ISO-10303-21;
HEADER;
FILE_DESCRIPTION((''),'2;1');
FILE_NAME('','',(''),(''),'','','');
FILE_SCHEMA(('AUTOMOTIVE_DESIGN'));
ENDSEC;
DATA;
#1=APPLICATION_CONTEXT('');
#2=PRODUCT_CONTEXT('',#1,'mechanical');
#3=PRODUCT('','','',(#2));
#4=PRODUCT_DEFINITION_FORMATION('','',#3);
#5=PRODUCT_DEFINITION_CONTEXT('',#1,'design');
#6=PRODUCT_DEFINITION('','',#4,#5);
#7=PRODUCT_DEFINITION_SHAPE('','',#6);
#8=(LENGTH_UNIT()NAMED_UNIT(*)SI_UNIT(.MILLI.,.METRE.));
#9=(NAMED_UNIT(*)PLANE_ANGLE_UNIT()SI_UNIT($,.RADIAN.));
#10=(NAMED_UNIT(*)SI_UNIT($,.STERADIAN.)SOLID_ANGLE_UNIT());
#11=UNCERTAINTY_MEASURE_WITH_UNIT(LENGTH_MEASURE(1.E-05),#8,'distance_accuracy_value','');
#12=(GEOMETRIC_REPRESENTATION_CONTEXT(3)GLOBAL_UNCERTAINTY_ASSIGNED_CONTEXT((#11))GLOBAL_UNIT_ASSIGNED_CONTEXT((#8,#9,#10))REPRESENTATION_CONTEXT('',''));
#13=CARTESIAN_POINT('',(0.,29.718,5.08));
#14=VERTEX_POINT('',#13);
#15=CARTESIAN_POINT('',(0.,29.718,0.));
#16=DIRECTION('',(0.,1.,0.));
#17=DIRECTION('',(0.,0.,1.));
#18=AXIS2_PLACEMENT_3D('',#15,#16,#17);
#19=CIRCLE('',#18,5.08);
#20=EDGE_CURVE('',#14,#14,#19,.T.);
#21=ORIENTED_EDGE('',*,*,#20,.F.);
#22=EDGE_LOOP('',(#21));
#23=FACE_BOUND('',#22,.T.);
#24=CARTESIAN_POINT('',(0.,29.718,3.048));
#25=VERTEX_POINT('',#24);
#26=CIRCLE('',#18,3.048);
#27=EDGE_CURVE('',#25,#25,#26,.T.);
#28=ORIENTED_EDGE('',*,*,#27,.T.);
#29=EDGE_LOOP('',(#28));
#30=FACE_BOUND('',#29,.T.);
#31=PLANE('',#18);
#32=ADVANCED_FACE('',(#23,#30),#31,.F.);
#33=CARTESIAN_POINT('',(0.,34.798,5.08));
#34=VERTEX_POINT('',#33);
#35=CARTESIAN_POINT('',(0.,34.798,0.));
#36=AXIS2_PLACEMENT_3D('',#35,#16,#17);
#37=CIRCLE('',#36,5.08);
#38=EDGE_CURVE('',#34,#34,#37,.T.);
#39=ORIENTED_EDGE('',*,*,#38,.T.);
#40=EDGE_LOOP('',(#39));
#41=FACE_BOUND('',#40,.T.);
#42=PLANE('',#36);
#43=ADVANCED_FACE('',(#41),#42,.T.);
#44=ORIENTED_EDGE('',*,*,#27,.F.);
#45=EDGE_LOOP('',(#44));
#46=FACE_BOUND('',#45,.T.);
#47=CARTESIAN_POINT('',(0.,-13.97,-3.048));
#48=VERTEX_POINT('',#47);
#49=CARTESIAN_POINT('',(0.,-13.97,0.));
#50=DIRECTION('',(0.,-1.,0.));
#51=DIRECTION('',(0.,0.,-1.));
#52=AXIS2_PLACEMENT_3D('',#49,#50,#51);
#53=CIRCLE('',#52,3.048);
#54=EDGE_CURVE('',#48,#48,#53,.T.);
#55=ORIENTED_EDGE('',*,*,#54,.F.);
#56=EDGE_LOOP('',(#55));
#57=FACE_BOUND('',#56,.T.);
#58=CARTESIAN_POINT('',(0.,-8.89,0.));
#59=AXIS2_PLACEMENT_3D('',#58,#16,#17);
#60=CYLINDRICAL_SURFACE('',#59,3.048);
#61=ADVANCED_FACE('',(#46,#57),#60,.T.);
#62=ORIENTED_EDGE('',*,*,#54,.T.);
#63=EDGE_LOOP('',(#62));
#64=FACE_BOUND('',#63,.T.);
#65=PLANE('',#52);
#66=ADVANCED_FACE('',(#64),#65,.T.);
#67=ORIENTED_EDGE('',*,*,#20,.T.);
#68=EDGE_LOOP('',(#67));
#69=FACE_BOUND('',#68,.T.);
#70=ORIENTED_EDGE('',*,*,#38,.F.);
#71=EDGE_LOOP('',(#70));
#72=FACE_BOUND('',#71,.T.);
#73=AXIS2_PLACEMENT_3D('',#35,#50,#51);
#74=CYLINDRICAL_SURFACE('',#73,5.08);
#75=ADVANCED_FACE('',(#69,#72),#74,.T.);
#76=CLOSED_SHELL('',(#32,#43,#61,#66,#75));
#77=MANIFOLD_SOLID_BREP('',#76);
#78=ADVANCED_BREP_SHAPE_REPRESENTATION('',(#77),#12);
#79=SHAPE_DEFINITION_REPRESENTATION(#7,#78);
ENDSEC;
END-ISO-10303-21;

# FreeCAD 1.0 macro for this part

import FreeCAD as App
import Part
import Sketcher
from FreeCAD import Vector
Q = App.Units.Quantity

doc = App.newDocument("Part")
body = doc.addObject("PartDesign::Body", "Body")

# Sketch on XZ plane
sketch1 = body.newObject("Sketcher::SketchObject", "Sketch")
sketch1.AttachmentSupport = (doc.getObject("XZ_Plane"), [""])
sketch1.MapMode = "FlatFace"
sketch1.addGeometry(Part.Circle(Vector(0, 0, 0), Vector(0, 0, 1), 3), False)
sketch1.addConstraint([
    Sketcher.Constraint("Coincident", 0, 3, -1, 1),
    Sketcher.Constraint("Diameter", 0, Q("0.24 in")),
])
pad1 = body.newObject("PartDesign::Pad", "Pad")
pad1.Profile = sketch1
pad1.Type = "TwoLengths"
pad1.Length = Q("1.17 in")
pad1.Length2 = Q("0.35 in")
pad1.Reversed = True

# Sketch on XZ plane
sketch2 = body.newObject("Sketcher::SketchObject", "Sketch001")
sketch2.AttachmentSupport = (doc.getObject("XZ_Plane"), [""])
sketch2.MapMode = "FlatFace"
sketch2.AttachmentOffset = App.Placement(Vector(0, 0, -1.17 * 25.4), App.Rotation())
sketch2.addGeometry(Part.Circle(Vector(0, 0, 0), Vector(0, 0, 1), 5), False)
sketch2.addConstraint([
    Sketcher.Constraint("Coincident", 0, 3, -1, 1),
    Sketcher.Constraint("Diameter", 0, Q("0.4 in")),
])
pad2 = body.newObject("PartDesign::Pad", "Pad001")
pad2.Profile = sketch2
pad2.Length = Q("0.2 in")
pad2.Reversed = True

# Sketch on XZ plane
sketch3 = body.newObject("Sketcher::SketchObject", "Sketch002")
sketch3.AttachmentSupport = (doc.getObject("XZ_Plane"), [""])
sketch3.MapMode = "FlatFace"
sketch3.AttachmentOffset = App.Placement(Vector(0, 0, 0.35 * 25.4), App.Rotation())
sketch3.addGeometry(Part.Circle(Vector(0, 0, 0), Vector(0, 0, 1), 3), False)
sketch3.addConstraint([
    Sketcher.Constraint("Coincident", 0, 3, -1, 1),
    Sketcher.Constraint("Diameter", 0, Q("0.24 in")),
])
pad3 = body.newObject("PartDesign::Pad", "Pad002")
pad3.Profile = sketch3
pad3.Length = Q("0.2 in")

doc.recompute()
